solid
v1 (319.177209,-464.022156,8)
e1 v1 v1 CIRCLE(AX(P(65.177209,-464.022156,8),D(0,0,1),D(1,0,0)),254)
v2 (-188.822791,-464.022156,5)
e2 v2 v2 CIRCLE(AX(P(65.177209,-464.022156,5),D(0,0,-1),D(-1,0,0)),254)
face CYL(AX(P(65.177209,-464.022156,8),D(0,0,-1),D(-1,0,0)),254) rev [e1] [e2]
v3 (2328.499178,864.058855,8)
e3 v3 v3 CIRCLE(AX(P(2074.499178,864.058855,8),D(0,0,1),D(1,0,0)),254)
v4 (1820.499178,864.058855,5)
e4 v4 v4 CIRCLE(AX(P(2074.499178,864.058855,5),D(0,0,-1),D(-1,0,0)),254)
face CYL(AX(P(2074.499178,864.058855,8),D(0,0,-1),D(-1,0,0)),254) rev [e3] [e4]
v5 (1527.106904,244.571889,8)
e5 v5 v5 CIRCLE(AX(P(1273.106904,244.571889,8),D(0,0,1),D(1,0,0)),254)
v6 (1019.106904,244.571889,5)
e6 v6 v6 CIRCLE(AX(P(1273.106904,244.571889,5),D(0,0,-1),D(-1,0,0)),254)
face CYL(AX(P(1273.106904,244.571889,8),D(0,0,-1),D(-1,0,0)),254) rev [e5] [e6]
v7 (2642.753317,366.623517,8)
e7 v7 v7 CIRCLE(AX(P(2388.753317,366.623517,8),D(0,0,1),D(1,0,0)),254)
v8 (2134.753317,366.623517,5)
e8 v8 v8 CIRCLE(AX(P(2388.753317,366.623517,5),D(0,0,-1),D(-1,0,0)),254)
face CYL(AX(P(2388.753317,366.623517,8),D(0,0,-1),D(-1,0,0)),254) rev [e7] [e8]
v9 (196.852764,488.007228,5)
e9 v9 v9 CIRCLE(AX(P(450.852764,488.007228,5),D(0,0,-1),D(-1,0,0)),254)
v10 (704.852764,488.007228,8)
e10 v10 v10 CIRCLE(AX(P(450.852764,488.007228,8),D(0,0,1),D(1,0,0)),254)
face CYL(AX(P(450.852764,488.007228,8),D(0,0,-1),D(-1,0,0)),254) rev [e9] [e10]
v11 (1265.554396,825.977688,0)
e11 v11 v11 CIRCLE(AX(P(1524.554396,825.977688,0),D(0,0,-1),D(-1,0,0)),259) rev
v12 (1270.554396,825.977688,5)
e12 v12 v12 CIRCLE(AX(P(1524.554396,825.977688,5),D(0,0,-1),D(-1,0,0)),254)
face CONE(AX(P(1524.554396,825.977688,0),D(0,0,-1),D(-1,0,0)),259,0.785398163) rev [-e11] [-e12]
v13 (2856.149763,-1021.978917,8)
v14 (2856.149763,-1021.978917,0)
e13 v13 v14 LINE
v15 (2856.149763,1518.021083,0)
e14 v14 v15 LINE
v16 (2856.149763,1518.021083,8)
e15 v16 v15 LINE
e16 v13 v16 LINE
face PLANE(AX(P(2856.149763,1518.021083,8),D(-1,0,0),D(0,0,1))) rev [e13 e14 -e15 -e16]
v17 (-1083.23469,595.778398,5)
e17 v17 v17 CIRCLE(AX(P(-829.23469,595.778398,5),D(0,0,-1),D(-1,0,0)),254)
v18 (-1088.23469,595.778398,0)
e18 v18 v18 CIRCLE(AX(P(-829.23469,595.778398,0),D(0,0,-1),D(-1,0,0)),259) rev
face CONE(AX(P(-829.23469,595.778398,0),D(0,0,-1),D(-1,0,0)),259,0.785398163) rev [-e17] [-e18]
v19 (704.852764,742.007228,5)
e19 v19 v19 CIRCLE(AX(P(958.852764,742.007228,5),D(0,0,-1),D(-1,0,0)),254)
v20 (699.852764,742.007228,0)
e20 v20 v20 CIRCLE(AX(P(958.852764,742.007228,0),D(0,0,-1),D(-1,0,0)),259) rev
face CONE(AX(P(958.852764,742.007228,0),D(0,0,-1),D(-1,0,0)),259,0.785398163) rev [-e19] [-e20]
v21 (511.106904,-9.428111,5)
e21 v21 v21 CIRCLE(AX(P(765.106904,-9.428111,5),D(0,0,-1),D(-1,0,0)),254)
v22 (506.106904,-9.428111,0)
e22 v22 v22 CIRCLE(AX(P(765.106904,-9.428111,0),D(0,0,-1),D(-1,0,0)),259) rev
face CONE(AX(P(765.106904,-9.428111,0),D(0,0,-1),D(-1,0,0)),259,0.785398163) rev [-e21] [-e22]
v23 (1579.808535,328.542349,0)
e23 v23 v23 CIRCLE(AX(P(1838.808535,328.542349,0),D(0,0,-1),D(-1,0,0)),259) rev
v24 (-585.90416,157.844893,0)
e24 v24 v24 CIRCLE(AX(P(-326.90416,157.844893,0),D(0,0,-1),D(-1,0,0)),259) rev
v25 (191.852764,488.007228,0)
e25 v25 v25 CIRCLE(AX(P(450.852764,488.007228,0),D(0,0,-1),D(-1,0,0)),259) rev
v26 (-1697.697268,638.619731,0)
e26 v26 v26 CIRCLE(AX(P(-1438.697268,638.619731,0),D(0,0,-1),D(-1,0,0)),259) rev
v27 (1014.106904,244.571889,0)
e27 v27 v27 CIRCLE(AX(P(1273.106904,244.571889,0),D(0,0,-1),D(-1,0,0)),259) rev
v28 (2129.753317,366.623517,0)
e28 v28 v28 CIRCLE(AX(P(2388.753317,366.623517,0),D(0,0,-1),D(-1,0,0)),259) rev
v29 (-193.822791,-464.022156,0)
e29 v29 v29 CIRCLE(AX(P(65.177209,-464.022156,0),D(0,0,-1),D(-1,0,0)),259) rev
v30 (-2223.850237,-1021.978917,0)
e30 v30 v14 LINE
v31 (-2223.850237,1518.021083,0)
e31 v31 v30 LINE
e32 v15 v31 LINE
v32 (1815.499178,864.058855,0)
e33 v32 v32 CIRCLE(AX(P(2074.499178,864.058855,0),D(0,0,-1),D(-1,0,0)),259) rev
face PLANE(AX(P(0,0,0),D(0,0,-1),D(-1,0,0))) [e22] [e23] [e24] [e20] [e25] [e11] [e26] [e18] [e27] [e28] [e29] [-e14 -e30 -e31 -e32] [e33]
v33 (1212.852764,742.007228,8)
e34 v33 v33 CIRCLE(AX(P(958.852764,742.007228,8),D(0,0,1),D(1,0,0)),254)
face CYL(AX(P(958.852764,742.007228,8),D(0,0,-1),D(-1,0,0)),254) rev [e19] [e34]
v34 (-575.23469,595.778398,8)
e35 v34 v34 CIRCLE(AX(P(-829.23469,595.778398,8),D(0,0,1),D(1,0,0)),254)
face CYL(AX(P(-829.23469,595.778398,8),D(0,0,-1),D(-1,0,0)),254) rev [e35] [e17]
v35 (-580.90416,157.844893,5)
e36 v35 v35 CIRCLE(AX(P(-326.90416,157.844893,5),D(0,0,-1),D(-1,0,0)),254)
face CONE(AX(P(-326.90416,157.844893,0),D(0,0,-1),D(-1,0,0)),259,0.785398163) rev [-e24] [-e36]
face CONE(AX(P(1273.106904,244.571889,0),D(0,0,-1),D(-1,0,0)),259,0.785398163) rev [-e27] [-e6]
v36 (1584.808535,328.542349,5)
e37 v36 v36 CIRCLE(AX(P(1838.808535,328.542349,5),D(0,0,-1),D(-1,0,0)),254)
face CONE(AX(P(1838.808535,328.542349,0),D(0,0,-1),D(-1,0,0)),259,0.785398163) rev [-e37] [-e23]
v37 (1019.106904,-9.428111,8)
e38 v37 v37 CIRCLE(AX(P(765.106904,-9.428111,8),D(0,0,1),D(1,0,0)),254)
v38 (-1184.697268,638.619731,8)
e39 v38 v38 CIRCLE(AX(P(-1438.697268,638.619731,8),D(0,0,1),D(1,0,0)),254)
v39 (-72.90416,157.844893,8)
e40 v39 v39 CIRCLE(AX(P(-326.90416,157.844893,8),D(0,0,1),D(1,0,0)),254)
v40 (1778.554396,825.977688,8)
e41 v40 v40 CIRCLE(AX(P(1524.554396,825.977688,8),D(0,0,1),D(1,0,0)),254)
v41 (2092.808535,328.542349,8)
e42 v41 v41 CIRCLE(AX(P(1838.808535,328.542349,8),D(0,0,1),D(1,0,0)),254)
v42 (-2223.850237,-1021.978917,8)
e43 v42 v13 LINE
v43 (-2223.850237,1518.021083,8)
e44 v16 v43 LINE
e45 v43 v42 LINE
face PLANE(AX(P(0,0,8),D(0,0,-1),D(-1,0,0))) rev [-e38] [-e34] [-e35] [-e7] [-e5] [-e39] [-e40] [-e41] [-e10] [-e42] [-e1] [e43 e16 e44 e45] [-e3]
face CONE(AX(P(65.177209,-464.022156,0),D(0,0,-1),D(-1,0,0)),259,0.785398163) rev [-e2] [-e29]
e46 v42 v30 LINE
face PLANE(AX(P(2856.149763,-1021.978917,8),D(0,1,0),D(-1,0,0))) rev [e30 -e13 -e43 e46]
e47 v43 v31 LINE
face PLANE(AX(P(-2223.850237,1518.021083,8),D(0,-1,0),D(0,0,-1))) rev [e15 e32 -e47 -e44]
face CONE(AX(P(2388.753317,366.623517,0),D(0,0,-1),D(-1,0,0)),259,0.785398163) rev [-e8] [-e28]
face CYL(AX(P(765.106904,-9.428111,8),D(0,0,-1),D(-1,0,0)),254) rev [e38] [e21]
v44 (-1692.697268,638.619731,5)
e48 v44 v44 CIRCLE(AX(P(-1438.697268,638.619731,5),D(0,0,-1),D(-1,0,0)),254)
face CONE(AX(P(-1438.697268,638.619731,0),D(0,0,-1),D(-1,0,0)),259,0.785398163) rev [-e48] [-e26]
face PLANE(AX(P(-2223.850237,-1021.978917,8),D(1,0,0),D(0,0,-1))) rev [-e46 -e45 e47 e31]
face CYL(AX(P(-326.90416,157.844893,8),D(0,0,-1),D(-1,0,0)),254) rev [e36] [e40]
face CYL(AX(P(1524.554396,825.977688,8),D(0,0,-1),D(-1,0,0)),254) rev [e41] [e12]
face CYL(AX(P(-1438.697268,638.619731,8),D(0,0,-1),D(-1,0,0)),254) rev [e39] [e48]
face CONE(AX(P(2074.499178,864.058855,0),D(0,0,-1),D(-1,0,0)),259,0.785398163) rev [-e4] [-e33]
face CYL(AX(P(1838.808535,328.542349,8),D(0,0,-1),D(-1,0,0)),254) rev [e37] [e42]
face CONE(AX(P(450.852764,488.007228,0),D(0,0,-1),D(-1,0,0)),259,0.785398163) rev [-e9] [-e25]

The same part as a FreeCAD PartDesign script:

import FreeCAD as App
import Part
import Sketcher

V = App.Vector
Q = App.Units.Quantity


def edges_at(feature, points):
    """Names of the edges that pass closest to the given points."""
    edges = feature.Shape.Edges
    near = lambda p: min(range(len(edges)), key=lambda i: edges[i].distToShape(Part.Vertex(*p))[0])
    return sorted({f"Edge{near(p) + 1}" for p in points})

doc = App.newDocument("Part")
params = doc.addObject("Spreadsheet::Sheet", "Params")
for row, (alias, value) in enumerate([
    ("sketch1_diameter", "20 in"),
    ("sketch1_width", "200 in"),
    ("sketch1_height", "100 in"),
    ("pad1_length", "8 mm"),
    ("chamfer_size", "5 mm"),
    ("chamfer2_size", "5 mm"),
], start=1):
    params.set(f"A{row}", alias)
    params.set(f"B{row}", "=" + value)
    params.setAlias(f"B{row}", alias)

body = doc.addObject("PartDesign::Body", "Body")

sketch1 = body.newObject("Sketcher::SketchObject", "Sketch")
sketch1.AttachmentSupport = (doc.getObject("XY_Plane"), [""])
sketch1.MapMode = "FlatFace"
sketch1.addGeometry([
    Part.LineSegment(V(-2224, 1518, 0), V(-2224, -1022, 0)),
    Part.LineSegment(V(-2224, -1022, 0), V(2856, -1022, 0)),
    Part.LineSegment(V(2856, -1022, 0), V(2856, 1518, 0)),
    Part.LineSegment(V(2856, 1518, 0), V(-2224, 1518, 0)),
    Part.Circle(V(65, -464, 0), V(0, 0, 1), 254),
    Part.Circle(V(-327, 158, 0), V(0, 0, 1), 254),
    Part.Circle(V(765, -9, 0), V(0, 0, 1), 254),
    Part.Circle(V(-1439, 639, 0), V(0, 0, 1), 254),
    Part.Circle(V(-829, 596, 0), V(0, 0, 1), 254),
    Part.Circle(V(451, 488, 0), V(0, 0, 1), 254),
    Part.Circle(V(1273, 245, 0), V(0, 0, 1), 254),
    Part.Circle(V(1839, 329, 0), V(0, 0, 1), 254),
    Part.Circle(V(2389, 367, 0), V(0, 0, 1), 254),
    Part.Circle(V(959, 742, 0), V(0, 0, 1), 254),
    Part.Circle(V(1525, 826, 0), V(0, 0, 1), 254),
    Part.Circle(V(2074, 864, 0), V(0, 0, 1), 254),
], False)
sketch1.addConstraint([
    Sketcher.Constraint("Coincident", 0, 2, 1, 1),
    Sketcher.Constraint("Coincident", 1, 2, 2, 1),
    Sketcher.Constraint("Coincident", 2, 2, 3, 1),
    Sketcher.Constraint("Coincident", 3, 2, 0, 1),
    Sketcher.Constraint("Vertical", 0),
    Sketcher.Constraint("Horizontal", 1),
    Sketcher.Constraint("Vertical", 2),
    Sketcher.Constraint("Horizontal", 3),
    Sketcher.Constraint("Equal", 4, 5),
    Sketcher.Constraint("Equal", 5, 6),
    Sketcher.Constraint("Equal", 6, 7),
    Sketcher.Constraint("Equal", 7, 8),
    Sketcher.Constraint("Equal", 8, 9),
    Sketcher.Constraint("Equal", 9, 10),
    Sketcher.Constraint("Equal", 10, 11),
    Sketcher.Constraint("Equal", 11, 12),
    Sketcher.Constraint("Equal", 12, 13),
    Sketcher.Constraint("Equal", 13, 14),
    Sketcher.Constraint("Equal", 14, 15),
    Sketcher.Constraint("Diameter", 4, Q("20 in")),
    Sketcher.Constraint("DistanceX", 1, 1, 1, 2, Q("200 in")),
    Sketcher.Constraint("DistanceY", 0, 2, 0, 1, Q("100 in")),
    Sketcher.Constraint("DistanceX", 6, 3, 10, 3, Q("20 in")),
    Sketcher.Constraint("DistanceY", 6, 3, 10, 3, Q("10 in")),
    Sketcher.Constraint("DistanceX", 9, 3, 13, 3, Q("20 in")),
    Sketcher.Constraint("DistanceY", 9, 3, 13, 3, Q("10 in")),
    Sketcher.Constraint("DistanceX", 8, 3, 4, 3, 894.411899),
    Sketcher.Constraint("DistanceY", 10, 3, 14, 3, 581.405799),
    Sketcher.Constraint("DistanceX", 0, 2, 9, 3, 2674.703002),
    Sketcher.Constraint("DistanceX", -1, 1, 4, 3, 65.177209),
    Sketcher.Constraint("DistanceX", 5, 3, -1, 1, 326.90416),
    Sketcher.Constraint("DistanceY", 6, 3, -1, 1, 9.428111),
    Sketcher.Constraint("DistanceX", 7, 3, -1, 1, 1438.697268),
    Sketcher.Constraint("DistanceY", -1, 1, 7, 3, 638.619731),
    Sketcher.Constraint("DistanceY", -1, 1, 11, 3, 328.542349),
    Sketcher.Constraint("DistanceY", 4, 3, 5, 3, 621.867049),
    Sketcher.Constraint("DistanceY", 6, 3, 8, 3, 605.206509),
    Sketcher.Constraint("DistanceX", 9, 3, 6, 3, 314.25414),
    Sketcher.Constraint("DistanceY", 6, 3, 9, 3, 497.435339),
    Sketcher.Constraint("DistanceX", 10, 3, 11, 3, 565.701631),
    Sketcher.Constraint("DistanceX", 11, 3, 12, 3, 549.944782),
    Sketcher.Constraint("DistanceY", 12, 3, 9, 3, 121.383711),
    Sketcher.Constraint("DistanceX", 4, 3, 12, 3, 2323.576109),
    Sketcher.Constraint("DistanceX", 13, 3, 14, 3, 565.701631),
    Sketcher.Constraint("DistanceX", 14, 3, 15, 3, 549.944782),
    Sketcher.Constraint("DistanceY", 12, 3, 15, 3, 497.435339),
    Sketcher.Constraint("DistanceY", 0, 2, 5, 3, 1179.82381),
    Sketcher.Constraint("DistanceY", 4, 3, -1, 1, 464.022156),
])
sketch1.setExpression("Constraints[19]", "Params.sketch1_diameter")
sketch1.setExpression("Constraints[20]", "Params.sketch1_width")
sketch1.setExpression("Constraints[21]", "Params.sketch1_height")
pad1 = body.newObject("PartDesign::Pad", "Pad")
pad1.Profile = sketch1
pad1.setExpression("Length", "Params.pad1_length")
doc.recompute()

chamfer = body.newObject("PartDesign::Chamfer", "Chamfer")
chamfer.Base = (pad1, edges_at(pad1, [(1820.499, 864.059, 0), (2134.753, 366.624, 0)]))
chamfer.setExpression("Size", "Params.chamfer_size")
doc.recompute()

chamfer2 = body.newObject("PartDesign::Chamfer", "Chamfer001")
chamfer2.Base = (chamfer, edges_at(chamfer, [
    (-1692.697, 638.62, 0),
    (-1083.235, 595.778, 0),
    (-580.904, 157.845, 0),
    (-188.823, -464.022, 0),
    (196.853, 488.007, 0),
    (704.853, 742.007, 0),
    (1270.554, 825.978, 0),
    (511.107, -9.428, 0),
    (1019.107, 244.572, 0),
    (1584.809, 328.542, 0),
]))
chamfer2.setExpression("Size", "Params.chamfer2_size")

doc.recompute()
